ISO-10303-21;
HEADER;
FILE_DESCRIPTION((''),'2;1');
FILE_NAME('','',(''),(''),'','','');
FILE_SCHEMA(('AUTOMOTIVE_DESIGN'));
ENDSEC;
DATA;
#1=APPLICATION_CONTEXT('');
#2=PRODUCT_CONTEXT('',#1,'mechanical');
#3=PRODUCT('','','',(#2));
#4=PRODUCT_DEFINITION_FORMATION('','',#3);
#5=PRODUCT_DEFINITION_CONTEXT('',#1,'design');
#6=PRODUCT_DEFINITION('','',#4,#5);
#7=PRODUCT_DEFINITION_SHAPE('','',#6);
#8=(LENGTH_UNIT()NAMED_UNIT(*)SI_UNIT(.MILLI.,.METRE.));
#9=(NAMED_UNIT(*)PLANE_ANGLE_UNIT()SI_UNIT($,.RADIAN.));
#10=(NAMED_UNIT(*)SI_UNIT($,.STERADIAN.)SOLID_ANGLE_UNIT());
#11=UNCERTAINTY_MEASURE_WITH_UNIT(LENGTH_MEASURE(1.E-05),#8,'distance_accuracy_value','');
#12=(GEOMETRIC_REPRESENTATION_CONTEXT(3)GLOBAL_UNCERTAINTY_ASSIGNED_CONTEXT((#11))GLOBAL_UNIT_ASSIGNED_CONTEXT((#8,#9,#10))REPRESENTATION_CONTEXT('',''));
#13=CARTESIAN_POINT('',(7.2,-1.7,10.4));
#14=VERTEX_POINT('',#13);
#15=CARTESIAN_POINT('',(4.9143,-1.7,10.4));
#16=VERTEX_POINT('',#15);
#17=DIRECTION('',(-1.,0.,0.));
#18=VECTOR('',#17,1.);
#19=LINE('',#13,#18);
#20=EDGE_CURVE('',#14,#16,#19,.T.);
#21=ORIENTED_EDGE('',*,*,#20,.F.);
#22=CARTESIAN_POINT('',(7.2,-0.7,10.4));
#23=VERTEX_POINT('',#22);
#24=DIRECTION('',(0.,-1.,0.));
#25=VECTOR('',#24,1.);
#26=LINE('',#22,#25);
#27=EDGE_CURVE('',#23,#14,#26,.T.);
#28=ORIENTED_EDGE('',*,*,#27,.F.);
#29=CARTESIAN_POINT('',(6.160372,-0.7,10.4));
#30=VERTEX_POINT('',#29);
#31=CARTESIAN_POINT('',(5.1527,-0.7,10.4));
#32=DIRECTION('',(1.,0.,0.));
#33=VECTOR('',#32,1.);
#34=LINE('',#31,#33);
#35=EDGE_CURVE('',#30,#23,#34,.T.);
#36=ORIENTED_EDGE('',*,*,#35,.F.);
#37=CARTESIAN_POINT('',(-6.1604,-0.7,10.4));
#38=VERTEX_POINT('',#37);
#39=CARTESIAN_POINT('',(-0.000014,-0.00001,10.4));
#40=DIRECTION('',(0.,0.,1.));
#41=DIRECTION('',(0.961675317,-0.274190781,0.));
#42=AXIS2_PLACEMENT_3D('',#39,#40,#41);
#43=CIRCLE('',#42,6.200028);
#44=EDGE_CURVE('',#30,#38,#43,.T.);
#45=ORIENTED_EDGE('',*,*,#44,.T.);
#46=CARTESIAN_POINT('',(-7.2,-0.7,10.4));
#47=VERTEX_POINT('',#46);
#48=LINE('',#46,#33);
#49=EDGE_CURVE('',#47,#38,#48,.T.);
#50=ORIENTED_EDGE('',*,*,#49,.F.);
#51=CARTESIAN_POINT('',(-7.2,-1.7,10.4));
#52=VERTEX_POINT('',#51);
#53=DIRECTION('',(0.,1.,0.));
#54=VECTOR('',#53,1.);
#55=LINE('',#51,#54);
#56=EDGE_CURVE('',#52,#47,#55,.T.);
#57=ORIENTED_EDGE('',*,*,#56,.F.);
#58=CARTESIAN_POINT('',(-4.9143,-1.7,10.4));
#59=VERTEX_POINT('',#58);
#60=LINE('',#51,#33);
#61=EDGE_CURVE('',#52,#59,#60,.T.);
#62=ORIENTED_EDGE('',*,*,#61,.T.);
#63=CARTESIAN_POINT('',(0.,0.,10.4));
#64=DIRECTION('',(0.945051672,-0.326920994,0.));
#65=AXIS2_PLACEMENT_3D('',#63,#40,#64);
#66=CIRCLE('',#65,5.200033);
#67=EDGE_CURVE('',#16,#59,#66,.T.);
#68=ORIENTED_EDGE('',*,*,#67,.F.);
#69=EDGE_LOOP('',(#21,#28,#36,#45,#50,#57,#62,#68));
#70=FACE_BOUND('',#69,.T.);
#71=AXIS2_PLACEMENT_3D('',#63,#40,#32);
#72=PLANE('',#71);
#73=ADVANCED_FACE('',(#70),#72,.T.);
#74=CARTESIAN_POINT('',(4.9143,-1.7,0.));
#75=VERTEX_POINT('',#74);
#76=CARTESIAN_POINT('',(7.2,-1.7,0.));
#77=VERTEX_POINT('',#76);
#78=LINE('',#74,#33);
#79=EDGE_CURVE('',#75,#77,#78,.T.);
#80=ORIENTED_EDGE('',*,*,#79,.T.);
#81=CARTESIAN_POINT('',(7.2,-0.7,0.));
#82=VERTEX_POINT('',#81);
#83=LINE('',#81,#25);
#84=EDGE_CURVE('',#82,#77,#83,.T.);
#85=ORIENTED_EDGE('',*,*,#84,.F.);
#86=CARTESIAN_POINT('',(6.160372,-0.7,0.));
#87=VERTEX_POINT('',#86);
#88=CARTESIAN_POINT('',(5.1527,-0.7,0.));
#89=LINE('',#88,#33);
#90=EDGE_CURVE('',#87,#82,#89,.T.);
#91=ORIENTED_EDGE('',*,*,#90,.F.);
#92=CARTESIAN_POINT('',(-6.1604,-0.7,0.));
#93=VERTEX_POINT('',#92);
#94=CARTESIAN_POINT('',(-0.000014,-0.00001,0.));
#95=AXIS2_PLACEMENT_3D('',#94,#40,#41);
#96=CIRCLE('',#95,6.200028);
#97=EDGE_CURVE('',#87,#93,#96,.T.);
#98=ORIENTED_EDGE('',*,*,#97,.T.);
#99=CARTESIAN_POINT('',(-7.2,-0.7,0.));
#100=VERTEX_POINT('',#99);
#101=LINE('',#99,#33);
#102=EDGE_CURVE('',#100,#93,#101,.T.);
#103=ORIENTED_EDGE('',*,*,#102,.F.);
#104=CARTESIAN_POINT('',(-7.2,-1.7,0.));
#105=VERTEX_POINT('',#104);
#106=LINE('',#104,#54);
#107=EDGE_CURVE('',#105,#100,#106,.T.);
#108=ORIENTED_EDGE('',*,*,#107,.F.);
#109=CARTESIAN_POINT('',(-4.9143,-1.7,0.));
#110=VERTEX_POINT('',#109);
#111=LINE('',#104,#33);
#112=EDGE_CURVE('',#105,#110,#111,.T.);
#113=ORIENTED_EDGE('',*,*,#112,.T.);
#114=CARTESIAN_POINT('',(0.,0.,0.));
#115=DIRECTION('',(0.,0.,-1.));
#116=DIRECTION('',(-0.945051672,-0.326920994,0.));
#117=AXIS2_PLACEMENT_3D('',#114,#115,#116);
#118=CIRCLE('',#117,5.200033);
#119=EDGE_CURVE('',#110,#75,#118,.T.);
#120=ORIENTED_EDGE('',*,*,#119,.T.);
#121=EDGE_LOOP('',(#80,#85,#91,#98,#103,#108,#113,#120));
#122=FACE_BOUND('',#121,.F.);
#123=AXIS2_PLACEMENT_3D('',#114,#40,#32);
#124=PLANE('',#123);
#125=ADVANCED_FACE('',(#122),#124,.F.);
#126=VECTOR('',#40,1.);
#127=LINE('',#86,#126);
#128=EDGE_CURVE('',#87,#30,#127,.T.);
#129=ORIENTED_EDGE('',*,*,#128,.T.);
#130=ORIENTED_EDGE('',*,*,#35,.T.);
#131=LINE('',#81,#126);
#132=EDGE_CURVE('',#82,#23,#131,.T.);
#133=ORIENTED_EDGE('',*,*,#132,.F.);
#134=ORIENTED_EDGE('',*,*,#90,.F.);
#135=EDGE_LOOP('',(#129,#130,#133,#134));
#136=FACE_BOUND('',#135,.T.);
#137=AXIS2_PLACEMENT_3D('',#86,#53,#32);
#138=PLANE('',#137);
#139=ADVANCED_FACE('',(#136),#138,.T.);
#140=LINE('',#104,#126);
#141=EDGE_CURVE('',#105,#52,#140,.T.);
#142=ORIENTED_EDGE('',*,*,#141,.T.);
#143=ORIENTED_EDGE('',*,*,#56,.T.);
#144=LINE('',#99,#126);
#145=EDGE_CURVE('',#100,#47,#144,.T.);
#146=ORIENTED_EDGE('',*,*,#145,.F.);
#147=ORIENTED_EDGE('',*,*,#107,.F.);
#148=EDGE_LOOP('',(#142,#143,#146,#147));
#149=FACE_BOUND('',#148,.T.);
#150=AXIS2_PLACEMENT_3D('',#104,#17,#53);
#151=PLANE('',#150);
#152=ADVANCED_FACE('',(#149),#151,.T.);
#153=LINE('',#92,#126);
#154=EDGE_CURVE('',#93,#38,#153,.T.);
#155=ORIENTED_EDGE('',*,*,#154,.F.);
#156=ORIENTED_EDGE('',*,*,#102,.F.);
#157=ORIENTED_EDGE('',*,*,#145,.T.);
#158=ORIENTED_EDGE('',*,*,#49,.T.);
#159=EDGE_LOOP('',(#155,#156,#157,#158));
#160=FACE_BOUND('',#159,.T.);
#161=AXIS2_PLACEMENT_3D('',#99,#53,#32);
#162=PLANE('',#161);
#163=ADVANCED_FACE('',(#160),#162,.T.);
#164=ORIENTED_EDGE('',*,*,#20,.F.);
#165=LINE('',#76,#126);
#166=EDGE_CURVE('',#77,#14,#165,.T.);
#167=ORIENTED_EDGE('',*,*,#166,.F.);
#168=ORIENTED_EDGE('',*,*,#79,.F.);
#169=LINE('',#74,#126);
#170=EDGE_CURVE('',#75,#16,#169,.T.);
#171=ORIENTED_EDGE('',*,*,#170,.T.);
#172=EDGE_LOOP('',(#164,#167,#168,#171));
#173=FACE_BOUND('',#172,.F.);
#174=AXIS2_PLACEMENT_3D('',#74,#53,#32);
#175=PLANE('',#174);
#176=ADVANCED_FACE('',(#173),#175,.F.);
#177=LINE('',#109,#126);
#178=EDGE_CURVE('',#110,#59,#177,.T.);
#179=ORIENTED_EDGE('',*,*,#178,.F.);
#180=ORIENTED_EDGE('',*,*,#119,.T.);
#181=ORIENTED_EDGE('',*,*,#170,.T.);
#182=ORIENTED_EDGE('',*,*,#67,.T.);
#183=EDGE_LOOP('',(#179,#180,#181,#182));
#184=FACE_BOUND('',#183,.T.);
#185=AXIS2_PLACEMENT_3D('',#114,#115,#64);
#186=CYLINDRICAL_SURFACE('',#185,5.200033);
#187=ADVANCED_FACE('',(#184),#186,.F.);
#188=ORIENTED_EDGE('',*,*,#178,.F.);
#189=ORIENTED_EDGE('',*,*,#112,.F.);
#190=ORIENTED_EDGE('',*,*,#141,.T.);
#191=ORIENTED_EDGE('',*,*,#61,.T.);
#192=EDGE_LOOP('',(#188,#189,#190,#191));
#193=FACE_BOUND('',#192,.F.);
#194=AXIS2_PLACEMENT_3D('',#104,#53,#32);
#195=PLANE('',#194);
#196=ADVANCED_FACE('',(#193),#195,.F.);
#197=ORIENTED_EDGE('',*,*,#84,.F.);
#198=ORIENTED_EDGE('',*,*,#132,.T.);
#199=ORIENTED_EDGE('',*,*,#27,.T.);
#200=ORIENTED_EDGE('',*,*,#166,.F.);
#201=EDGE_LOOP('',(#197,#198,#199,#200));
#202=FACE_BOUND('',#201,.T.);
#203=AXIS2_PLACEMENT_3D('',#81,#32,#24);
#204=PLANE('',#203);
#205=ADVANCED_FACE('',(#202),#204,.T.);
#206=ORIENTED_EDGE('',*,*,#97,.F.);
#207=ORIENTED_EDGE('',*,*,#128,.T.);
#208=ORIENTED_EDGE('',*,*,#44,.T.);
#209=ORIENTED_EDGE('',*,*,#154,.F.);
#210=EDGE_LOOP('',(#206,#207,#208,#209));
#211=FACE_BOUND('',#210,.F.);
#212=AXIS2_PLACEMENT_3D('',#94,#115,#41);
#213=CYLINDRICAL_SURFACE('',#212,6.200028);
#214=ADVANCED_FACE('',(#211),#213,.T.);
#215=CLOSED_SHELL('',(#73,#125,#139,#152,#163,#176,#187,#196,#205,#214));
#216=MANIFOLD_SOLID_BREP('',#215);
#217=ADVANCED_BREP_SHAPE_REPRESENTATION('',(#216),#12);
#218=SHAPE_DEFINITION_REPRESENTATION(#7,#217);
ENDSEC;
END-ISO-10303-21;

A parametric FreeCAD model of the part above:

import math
import FreeCAD as App
import Part
import Sketcher

V = App.Vector
Q = App.Units.Quantity

doc = App.newDocument("Part")
params = doc.addObject("Spreadsheet::Sheet", "Params")
for row, (alias, value) in enumerate([
    ("sketch1_radius", "5.2 mm"),
    ("sketch1_height", "1 mm"),
    ("sketch1_radius2", "6.2 mm"),
    ("pad1_length", "10.4 mm"),
], start=1):
    params.set(f"A{row}", alias)
    params.set(f"B{row}", "=" + value)
    params.setAlias(f"B{row}", alias)

body = doc.addObject("PartDesign::Body", "Body")

# Sketch on XY plane
sketch1 = body.newObject("Sketcher::SketchObject", "Sketch")
sketch1.AttachmentSupport = (doc.getObject("XY_Plane"), [""])
sketch1.MapMode = "FlatFace"
sketch1.addGeometry([
    Part.LineSegment(V(4.9143, -1.7, 0), V(7.2, -1.7, 0)),  # 0
    Part.LineSegment(V(7.2, -1.7, 0), V(7.2, -0.7, 0)),  # 1
    Part.LineSegment(V(7.2, -0.7, 0), V(6.160372, -0.7, 0)),  # 2
    Part.ArcOfCircle(Part.Circle(V(0, 0, 0), V(0, 0, 1), 6.200017), math.radians(-6.482685), math.radians(186.482656)),  # 3
    Part.LineSegment(V(-6.1604, -0.7, 0), V(-7.2, -0.7, 0)),  # 4
    Part.LineSegment(V(-7.2, -0.7, 0), V(-7.2, -1.7, 0)),  # 5
    Part.LineSegment(V(-7.2, -1.7, 0), V(-4.9143, -1.7, 0)),  # 6
    Part.ArcOfCircle(Part.Circle(V(0, 0, 0), V(0, 0, 1), 5.200033), math.radians(-19.081999), math.radians(199.081999)),  # 7
], False)
sketch1.addConstraint([
    Sketcher.Constraint("Coincident", 0, 2, 1, 1),
    Sketcher.Constraint("Coincident", 1, 2, 2, 1),
    Sketcher.Constraint("Coincident", 2, 2, 3, 1),
    Sketcher.Constraint("Coincident", 3, 2, 4, 1),
    Sketcher.Constraint("Coincident", 4, 2, 5, 1),
    Sketcher.Constraint("Coincident", 5, 2, 6, 1),
    Sketcher.Constraint("Coincident", 6, 2, 7, 2),
    Sketcher.Constraint("Coincident", 7, 1, 0, 1),
    Sketcher.Constraint("Horizontal", 0),
    Sketcher.Constraint("Vertical", 1),
    Sketcher.Constraint("Horizontal", 2),
    Sketcher.Constraint("Horizontal", 4),
    Sketcher.Constraint("Vertical", 5),
    Sketcher.Constraint("Horizontal", 6),
    Sketcher.Constraint("Coincident", 3, 3, -1, 1),
    Sketcher.Constraint("Coincident", 7, 3, -1, 1),
    Sketcher.Constraint("Symmetric", 1, 2, 4, 2, -2),
    Sketcher.Constraint("Horizontal", 0, 2, 5, 2),
    Sketcher.Constraint("Radius", 7, Q("5.2 mm")),
    Sketcher.Constraint("DistanceY", 1, 1, 1, 2, Q("1 mm")),
    Sketcher.Constraint("DistanceY", 1, 2, -1, 1, Q("0.7 mm")),
    Sketcher.Constraint("Radius", 3, Q("6.2 mm")),
    Sketcher.Constraint("DistanceX", -1, 1, 0, 2, Q("7.2 mm")),
])
sketch1.setExpression("Constraints[18]", "Params.sketch1_radius")
sketch1.setExpression("Constraints[19]", "Params.sketch1_height")
sketch1.setExpression("Constraints[21]", "Params.sketch1_radius2")
pad1 = body.newObject("PartDesign::Pad", "Pad")
pad1.Profile = sketch1
pad1.setExpression("Length", "Params.pad1_length")

doc.recompute()
